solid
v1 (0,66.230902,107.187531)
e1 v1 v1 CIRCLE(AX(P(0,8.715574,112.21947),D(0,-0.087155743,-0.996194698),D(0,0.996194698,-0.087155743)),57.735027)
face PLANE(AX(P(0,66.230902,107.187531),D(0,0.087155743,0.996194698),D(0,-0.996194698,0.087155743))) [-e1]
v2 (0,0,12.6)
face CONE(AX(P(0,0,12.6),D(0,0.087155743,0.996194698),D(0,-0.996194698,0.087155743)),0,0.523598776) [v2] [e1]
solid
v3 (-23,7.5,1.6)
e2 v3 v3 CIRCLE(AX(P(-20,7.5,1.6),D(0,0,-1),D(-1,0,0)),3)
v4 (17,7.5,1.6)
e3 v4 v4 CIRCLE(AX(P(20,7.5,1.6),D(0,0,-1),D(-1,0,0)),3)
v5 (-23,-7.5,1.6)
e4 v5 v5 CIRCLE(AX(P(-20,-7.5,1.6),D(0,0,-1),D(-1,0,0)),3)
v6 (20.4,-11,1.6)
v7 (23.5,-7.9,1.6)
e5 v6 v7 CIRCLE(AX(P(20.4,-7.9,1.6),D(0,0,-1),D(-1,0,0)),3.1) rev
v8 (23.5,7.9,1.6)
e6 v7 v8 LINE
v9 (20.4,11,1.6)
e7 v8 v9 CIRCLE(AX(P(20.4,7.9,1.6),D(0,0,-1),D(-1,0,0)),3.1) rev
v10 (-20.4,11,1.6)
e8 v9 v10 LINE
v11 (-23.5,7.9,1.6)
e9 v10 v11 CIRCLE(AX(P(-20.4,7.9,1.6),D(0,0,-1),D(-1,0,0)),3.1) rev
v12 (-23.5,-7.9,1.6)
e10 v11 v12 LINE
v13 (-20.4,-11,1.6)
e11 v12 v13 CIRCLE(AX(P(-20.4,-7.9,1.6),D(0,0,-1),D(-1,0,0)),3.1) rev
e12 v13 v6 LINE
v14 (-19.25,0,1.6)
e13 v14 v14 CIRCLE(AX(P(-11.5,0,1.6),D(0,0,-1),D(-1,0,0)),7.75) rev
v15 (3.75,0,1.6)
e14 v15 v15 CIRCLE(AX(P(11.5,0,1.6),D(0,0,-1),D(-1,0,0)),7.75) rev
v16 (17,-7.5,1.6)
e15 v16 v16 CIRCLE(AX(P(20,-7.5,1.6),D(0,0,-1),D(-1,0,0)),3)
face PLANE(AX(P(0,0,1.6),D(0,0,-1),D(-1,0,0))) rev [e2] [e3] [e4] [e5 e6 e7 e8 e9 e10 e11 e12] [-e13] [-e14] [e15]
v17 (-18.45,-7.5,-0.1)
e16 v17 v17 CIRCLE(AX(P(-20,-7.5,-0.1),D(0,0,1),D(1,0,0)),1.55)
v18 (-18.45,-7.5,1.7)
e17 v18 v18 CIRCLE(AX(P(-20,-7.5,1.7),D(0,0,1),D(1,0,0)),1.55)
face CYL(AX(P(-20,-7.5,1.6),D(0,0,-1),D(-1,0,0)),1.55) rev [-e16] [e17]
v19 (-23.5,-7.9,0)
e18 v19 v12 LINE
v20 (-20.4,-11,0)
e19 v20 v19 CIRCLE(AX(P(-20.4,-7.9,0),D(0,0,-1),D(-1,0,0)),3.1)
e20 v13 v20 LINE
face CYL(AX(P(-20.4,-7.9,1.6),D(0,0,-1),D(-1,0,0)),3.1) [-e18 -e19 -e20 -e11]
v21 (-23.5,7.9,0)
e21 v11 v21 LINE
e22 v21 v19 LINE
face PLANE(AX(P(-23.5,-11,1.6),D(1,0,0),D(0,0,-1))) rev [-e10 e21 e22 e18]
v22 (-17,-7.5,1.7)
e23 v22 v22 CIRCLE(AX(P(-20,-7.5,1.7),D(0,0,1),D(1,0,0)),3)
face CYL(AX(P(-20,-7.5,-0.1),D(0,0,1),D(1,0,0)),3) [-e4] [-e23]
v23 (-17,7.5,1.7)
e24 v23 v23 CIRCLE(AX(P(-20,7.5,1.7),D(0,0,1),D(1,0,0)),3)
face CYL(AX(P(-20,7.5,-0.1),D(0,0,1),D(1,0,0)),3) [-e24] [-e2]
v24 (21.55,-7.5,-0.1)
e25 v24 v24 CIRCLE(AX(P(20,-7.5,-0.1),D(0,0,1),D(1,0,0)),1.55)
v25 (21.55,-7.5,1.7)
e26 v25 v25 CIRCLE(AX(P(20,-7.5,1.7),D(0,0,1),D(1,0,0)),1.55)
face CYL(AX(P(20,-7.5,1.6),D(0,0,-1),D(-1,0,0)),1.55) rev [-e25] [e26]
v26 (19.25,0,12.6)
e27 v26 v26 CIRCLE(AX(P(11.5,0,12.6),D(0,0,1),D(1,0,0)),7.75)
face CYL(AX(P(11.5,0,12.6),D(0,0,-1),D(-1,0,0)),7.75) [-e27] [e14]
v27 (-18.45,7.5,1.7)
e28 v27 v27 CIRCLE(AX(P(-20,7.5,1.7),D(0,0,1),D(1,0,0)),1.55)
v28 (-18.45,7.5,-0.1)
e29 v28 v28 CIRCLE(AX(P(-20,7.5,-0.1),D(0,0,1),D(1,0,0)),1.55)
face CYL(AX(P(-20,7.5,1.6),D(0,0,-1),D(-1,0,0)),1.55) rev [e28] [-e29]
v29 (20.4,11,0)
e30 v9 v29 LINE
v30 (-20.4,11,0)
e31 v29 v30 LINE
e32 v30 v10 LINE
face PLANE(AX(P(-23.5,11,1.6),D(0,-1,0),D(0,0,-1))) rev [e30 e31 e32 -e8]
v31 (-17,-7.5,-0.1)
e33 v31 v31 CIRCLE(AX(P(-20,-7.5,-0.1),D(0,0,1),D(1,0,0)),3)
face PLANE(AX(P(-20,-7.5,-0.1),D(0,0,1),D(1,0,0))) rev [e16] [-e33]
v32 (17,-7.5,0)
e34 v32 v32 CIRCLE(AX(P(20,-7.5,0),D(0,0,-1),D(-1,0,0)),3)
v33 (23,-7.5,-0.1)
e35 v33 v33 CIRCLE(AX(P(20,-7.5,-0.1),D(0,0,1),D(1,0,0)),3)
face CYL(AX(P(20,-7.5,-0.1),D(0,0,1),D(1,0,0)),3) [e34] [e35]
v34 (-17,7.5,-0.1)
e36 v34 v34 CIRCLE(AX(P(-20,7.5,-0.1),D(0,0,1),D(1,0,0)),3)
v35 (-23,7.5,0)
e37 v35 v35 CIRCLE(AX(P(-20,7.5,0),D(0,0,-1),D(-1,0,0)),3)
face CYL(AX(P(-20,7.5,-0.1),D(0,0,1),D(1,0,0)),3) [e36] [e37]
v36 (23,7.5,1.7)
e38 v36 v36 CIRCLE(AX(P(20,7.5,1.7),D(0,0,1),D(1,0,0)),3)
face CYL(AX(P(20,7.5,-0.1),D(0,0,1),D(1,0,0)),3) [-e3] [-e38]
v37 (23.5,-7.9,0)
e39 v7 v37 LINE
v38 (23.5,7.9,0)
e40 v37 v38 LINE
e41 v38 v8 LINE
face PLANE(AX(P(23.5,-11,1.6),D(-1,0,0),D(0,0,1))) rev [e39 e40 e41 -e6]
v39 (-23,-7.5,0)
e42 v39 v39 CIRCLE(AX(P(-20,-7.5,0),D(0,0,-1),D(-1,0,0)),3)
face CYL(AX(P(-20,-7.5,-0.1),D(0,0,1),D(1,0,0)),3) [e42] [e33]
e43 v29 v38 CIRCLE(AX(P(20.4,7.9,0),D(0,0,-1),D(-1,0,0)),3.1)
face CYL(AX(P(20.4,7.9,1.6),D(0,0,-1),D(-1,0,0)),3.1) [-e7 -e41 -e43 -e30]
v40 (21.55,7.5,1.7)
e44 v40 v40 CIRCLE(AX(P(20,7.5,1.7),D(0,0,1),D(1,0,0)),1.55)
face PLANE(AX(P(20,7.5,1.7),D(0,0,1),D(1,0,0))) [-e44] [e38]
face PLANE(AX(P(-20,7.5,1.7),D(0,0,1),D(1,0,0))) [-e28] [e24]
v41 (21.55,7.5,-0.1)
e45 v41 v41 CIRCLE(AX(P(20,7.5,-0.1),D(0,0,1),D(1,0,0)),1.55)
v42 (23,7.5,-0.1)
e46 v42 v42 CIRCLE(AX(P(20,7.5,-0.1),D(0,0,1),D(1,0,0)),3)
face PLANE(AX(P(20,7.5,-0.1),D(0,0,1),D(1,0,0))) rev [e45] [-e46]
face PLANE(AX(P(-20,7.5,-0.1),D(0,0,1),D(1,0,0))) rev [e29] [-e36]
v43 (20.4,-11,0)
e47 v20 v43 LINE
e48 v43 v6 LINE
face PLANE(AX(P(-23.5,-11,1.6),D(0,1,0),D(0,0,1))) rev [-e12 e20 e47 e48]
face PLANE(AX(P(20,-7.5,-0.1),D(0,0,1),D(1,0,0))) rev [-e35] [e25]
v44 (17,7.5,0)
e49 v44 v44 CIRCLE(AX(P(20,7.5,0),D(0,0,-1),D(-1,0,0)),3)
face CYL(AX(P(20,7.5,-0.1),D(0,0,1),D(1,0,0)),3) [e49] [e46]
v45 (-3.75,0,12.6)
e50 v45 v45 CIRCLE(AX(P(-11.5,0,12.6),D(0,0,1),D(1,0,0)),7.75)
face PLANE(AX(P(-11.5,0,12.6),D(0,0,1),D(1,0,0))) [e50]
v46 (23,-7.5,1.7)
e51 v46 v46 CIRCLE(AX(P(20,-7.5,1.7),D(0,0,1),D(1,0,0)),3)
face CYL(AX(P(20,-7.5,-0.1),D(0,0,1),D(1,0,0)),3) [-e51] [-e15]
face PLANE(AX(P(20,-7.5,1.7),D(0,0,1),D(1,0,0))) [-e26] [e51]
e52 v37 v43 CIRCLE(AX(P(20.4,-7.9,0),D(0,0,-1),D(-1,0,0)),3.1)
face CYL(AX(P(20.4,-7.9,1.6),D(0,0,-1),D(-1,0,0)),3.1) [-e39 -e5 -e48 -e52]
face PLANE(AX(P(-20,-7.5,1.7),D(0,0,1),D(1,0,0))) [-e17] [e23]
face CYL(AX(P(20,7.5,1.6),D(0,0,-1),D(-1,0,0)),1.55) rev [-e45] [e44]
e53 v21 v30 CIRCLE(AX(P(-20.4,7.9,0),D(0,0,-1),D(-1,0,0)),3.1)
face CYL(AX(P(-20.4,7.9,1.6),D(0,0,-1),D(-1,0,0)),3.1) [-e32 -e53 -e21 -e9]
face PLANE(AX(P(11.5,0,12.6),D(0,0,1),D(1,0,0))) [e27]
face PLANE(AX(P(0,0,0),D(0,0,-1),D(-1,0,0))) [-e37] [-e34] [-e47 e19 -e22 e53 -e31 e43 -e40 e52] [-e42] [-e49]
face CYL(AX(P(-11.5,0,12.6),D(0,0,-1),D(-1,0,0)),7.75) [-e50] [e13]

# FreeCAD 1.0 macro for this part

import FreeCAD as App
import Part
import Sketcher
Q = App.Units.Quantity


def edges_at(feature, points):
    """Names of the edges that pass closest to the given points."""
    edges = feature.Shape.Edges
    near = lambda p: min(range(len(edges)), key=lambda i: edges[i].distToShape(Part.Vertex(*p))[0])
    return sorted({f"Edge{near(p) + 1}" for p in points})


def add_polygon(sketch, points):
    """Adds a closed chain of lines whose ends are joined by coincident constraints."""
    first, n = sketch.GeometryCount, len(points)
    for a, b in zip(points, points[1:] + points[:1]):
        sketch.addGeometry(Part.LineSegment(App.Vector(*a, 0), App.Vector(*b, 0)), False)
    for i in range(n):
        sketch.addConstraint(Sketcher.Constraint("Coincident", first + i, 2, first + (i + 1) % n, 1))

doc = App.newDocument("Part")
body = doc.addObject("PartDesign::Body", "Body")

# Sketch on XY plane
sketch1 = body.newObject("Sketcher::SketchObject", "Sketch")
sketch1.AttachmentSupport = (doc.getObject("XY_Plane"), [""])
sketch1.MapMode = "FlatFace"
add_polygon(sketch1, [(-23.5, 11), (-23.5, -11), (23.5, -11), (23.5, 11)])  # lines 0-3
sketch1.addGeometry(Part.Circle(App.Vector(-20, -7.5, 0), App.Vector(0, 0, 1), 1.6), False)  # 4
sketch1.addGeometry(Part.Circle(App.Vector(20, -7.5, 0), App.Vector(0, 0, 1), 1.6), False)  # 5
sketch1.addGeometry(Part.Circle(App.Vector(-20, 7.5, 0), App.Vector(0, 0, 1), 1.6), False)  # 6
sketch1.addGeometry(Part.Circle(App.Vector(20, 7.5, 0), App.Vector(0, 0, 1), 1.6), False)  # 7
sketch1.addConstraint(Sketcher.Constraint("Vertical", 0))
sketch1.addConstraint(Sketcher.Constraint("Horizontal", 1))
sketch1.addConstraint(Sketcher.Constraint("Vertical", 2))
sketch1.addConstraint(Sketcher.Constraint("Horizontal", 3))
sketch1.addConstraint(Sketcher.Constraint("Equal", 4, 5))
sketch1.addConstraint(Sketcher.Constraint("Equal", 5, 6))
sketch1.addConstraint(Sketcher.Constraint("Equal", 6, 7))
sketch1.addConstraint(Sketcher.Constraint("Symmetric", 5, 3, 6, 3, -1, 1))
sketch1.addConstraint(Sketcher.Constraint("Symmetric", 4, 3, 7, 3, -1, 1))
sketch1.addConstraint(Sketcher.Constraint("Symmetric", 0, 2, 2, 2, -1, 1))
sketch1.addConstraint(Sketcher.Constraint("Symmetric", 4, 3, 5, 3, -2))
sketch1.addConstraint(Sketcher.Constraint("Diameter", 4, Q("3.1 mm")))
sketch1.addConstraint(Sketcher.Constraint("DistanceX", 1, 1, 1, 2, Q("47 mm")))
sketch1.addConstraint(Sketcher.Constraint("DistanceY", 0, 2, 0, 1, Q("22 mm")))
sketch1.addConstraint(Sketcher.Constraint("DistanceX", 4, 3, -1, 1, Q("20 mm")))
sketch1.addConstraint(Sketcher.Constraint("DistanceY", 4, 3, 6, 3, Q("15 mm")))
pad1 = body.newObject("PartDesign::Pad", "Pad")
pad1.Profile = sketch1
pad1.Length = 1.6
doc.recompute()

fillet = body.newObject("PartDesign::Fillet", "Fillet")
fillet.Base = (pad1, edges_at(pad1, [
    (23.5, -11, 0.8),
    (-23.5, -11, 0.8),
    (-23.5, 11, 0.8),
    (23.5, 11, 0.8),
]))
fillet.Radius = 3.1

# Sketch on XY plane
sketch2 = body.newObject("Sketcher::SketchObject", "Sketch001")
sketch2.AttachmentSupport = (doc.getObject("XY_Plane"), [""])
sketch2.MapMode = "FlatFace"
sketch2.AttachmentOffset = App.Placement(App.Vector(0, 0, 1.6), App.Rotation())
sketch2.addGeometry(Part.Circle(App.Vector(-20, 7.5, 0), App.Vector(0, 0, 1), 3), False)
sketch2.addGeometry(Part.Circle(App.Vector(-20, 7.5, 0), App.Vector(0, 0, 1), 1.6), False)
sketch2.addGeometry(Part.Circle(App.Vector(-20, -7.5, 0), App.Vector(0, 0, 1), 3), False)
sketch2.addGeometry(Part.Circle(App.Vector(-20, -7.5, 0), App.Vector(0, 0, 1), 1.6), False)
sketch2.addGeometry(Part.Circle(App.Vector(20, 7.5, 0), App.Vector(0, 0, 1), 3), False)
sketch2.addGeometry(Part.Circle(App.Vector(20, 7.5, 0), App.Vector(0, 0, 1), 1.6), False)
sketch2.addGeometry(Part.Circle(App.Vector(20, -7.5, 0), App.Vector(0, 0, 1), 3), False)
sketch2.addGeometry(Part.Circle(App.Vector(20, -7.5, 0), App.Vector(0, 0, 1), 1.6), False)
sketch2.addConstraint(Sketcher.Constraint("Coincident", 1, 3, 0, 3))
sketch2.addConstraint(Sketcher.Constraint("Coincident", 3, 3, 2, 3))
sketch2.addConstraint(Sketcher.Constraint("Coincident", 5, 3, 4, 3))
sketch2.addConstraint(Sketcher.Constraint("Coincident", 7, 3, 6, 3))
sketch2.addConstraint(Sketcher.Constraint("Equal", 0, 2))
sketch2.addConstraint(Sketcher.Constraint("Equal", 1, 3))
sketch2.addConstraint(Sketcher.Constraint("Equal", 2, 4))
sketch2.addConstraint(Sketcher.Constraint("Equal", 3, 5))
sketch2.addConstraint(Sketcher.Constraint("Equal", 4, 6))
sketch2.addConstraint(Sketcher.Constraint("Equal", 5, 7))
sketch2.addConstraint(Sketcher.Constraint("Symmetric", 2, 3, 4, 3, -1, 1))
sketch2.addConstraint(Sketcher.Constraint("Symmetric", 0, 3, 6, 3, -1, 1))
sketch2.addConstraint(Sketcher.Constraint("Symmetric", 0, 3, 4, 3, -2))
sketch2.addConstraint(Sketcher.Constraint("Diameter", 0, Q("6 mm")))
sketch2.addConstraint(Sketcher.Constraint("Diameter", 1, Q("3.1 mm")))
sketch2.addConstraint(Sketcher.Constraint("DistanceX", 0, 3, -1, 1, Q("20 mm")))
sketch2.addConstraint(Sketcher.Constraint("DistanceY", 2, 3, 0, 3, Q("15 mm")))
pad2 = body.newObject("PartDesign::Pad", "Pad001")
pad2.Profile = sketch2
pad2.Type = "TwoLengths"
pad2.Length = 0.1
pad2.Length2 = 1.7

# Sketch on XY plane
sketch3 = body.newObject("Sketcher::SketchObject", "Sketch002")
sketch3.AttachmentSupport = (doc.getObject("XY_Plane"), [""])
sketch3.MapMode = "FlatFace"
sketch3.AttachmentOffset = App.Placement(App.Vector(0, 0, 1.6), App.Rotation())
sketch3.addGeometry(Part.Circle(App.Vector(12, 0, 0), App.Vector(0, 0, 1), 8), False)
sketch3.addGeometry(Part.Circle(App.Vector(-12, 0, 0), App.Vector(0, 0, 1), 8), False)
sketch3.addConstraint(Sketcher.Constraint("Equal", 0, 1))
sketch3.addConstraint(Sketcher.Constraint("Symmetric", 0, 3, 1, 3, -1, 1))
sketch3.addConstraint(Sketcher.Constraint("PointOnObject", 0, 3, -1))
sketch3.addConstraint(Sketcher.Constraint("Diameter", 0, Q("15.5 mm")))
sketch3.addConstraint(Sketcher.Constraint("DistanceX", 1, 3, 0, 3, Q("23 mm")))
pad3 = body.newObject("PartDesign::Pad", "Pad002")
pad3.Profile = sketch3
pad3.Length = 11
body2 = doc.addObject("PartDesign::Body", "Body001")

# Sketch on YZ plane
sketch4 = body2.newObject("Sketcher::SketchObject", "Sketch003")
sketch4.AttachmentSupport = (doc.getObject("YZ_Plane001"), [""])
sketch4.MapMode = "FlatFace"
add_polygon(sketch4, [(0, 13), (66, 107), (9, 112)])  # lines 0-2
sketch4.addGeometry(Part.LineSegment(App.Vector(0, 13, 0), App.Vector(9, 112, 0)), True)  # axis
sketch4.addConstraint(Sketcher.Constraint("Coincident", 3, 1, 2, 2))
sketch4.addConstraint(Sketcher.Constraint("Coincident", 3, 2, 1, 2))
sketch4.addConstraint(Sketcher.Constraint("PointOnObject", 2, 2, -2))
sketch4.addConstraint(Sketcher.Constraint("Perpendicular", 1, 2))
sketch4.addConstraint(Sketcher.Constraint("Angle", 0, Q("55 deg")))
sketch4.addConstraint(Sketcher.Constraint("Angle", 1, Q("175 deg")))
sketch4.addConstraint(Sketcher.Constraint("Distance", 2, Q("100 mm")))
sketch4.addConstraint(Sketcher.Constraint("DistanceY", -1, 1, 2, 2, Q("12.6 mm")))
revolution = body2.newObject("PartDesign::Revolution", "Revolution")
revolution.Profile = sketch4
revolution.ReferenceAxis = (sketch4, ["Axis0"])
revolution.Angle = 360

doc.recompute()
